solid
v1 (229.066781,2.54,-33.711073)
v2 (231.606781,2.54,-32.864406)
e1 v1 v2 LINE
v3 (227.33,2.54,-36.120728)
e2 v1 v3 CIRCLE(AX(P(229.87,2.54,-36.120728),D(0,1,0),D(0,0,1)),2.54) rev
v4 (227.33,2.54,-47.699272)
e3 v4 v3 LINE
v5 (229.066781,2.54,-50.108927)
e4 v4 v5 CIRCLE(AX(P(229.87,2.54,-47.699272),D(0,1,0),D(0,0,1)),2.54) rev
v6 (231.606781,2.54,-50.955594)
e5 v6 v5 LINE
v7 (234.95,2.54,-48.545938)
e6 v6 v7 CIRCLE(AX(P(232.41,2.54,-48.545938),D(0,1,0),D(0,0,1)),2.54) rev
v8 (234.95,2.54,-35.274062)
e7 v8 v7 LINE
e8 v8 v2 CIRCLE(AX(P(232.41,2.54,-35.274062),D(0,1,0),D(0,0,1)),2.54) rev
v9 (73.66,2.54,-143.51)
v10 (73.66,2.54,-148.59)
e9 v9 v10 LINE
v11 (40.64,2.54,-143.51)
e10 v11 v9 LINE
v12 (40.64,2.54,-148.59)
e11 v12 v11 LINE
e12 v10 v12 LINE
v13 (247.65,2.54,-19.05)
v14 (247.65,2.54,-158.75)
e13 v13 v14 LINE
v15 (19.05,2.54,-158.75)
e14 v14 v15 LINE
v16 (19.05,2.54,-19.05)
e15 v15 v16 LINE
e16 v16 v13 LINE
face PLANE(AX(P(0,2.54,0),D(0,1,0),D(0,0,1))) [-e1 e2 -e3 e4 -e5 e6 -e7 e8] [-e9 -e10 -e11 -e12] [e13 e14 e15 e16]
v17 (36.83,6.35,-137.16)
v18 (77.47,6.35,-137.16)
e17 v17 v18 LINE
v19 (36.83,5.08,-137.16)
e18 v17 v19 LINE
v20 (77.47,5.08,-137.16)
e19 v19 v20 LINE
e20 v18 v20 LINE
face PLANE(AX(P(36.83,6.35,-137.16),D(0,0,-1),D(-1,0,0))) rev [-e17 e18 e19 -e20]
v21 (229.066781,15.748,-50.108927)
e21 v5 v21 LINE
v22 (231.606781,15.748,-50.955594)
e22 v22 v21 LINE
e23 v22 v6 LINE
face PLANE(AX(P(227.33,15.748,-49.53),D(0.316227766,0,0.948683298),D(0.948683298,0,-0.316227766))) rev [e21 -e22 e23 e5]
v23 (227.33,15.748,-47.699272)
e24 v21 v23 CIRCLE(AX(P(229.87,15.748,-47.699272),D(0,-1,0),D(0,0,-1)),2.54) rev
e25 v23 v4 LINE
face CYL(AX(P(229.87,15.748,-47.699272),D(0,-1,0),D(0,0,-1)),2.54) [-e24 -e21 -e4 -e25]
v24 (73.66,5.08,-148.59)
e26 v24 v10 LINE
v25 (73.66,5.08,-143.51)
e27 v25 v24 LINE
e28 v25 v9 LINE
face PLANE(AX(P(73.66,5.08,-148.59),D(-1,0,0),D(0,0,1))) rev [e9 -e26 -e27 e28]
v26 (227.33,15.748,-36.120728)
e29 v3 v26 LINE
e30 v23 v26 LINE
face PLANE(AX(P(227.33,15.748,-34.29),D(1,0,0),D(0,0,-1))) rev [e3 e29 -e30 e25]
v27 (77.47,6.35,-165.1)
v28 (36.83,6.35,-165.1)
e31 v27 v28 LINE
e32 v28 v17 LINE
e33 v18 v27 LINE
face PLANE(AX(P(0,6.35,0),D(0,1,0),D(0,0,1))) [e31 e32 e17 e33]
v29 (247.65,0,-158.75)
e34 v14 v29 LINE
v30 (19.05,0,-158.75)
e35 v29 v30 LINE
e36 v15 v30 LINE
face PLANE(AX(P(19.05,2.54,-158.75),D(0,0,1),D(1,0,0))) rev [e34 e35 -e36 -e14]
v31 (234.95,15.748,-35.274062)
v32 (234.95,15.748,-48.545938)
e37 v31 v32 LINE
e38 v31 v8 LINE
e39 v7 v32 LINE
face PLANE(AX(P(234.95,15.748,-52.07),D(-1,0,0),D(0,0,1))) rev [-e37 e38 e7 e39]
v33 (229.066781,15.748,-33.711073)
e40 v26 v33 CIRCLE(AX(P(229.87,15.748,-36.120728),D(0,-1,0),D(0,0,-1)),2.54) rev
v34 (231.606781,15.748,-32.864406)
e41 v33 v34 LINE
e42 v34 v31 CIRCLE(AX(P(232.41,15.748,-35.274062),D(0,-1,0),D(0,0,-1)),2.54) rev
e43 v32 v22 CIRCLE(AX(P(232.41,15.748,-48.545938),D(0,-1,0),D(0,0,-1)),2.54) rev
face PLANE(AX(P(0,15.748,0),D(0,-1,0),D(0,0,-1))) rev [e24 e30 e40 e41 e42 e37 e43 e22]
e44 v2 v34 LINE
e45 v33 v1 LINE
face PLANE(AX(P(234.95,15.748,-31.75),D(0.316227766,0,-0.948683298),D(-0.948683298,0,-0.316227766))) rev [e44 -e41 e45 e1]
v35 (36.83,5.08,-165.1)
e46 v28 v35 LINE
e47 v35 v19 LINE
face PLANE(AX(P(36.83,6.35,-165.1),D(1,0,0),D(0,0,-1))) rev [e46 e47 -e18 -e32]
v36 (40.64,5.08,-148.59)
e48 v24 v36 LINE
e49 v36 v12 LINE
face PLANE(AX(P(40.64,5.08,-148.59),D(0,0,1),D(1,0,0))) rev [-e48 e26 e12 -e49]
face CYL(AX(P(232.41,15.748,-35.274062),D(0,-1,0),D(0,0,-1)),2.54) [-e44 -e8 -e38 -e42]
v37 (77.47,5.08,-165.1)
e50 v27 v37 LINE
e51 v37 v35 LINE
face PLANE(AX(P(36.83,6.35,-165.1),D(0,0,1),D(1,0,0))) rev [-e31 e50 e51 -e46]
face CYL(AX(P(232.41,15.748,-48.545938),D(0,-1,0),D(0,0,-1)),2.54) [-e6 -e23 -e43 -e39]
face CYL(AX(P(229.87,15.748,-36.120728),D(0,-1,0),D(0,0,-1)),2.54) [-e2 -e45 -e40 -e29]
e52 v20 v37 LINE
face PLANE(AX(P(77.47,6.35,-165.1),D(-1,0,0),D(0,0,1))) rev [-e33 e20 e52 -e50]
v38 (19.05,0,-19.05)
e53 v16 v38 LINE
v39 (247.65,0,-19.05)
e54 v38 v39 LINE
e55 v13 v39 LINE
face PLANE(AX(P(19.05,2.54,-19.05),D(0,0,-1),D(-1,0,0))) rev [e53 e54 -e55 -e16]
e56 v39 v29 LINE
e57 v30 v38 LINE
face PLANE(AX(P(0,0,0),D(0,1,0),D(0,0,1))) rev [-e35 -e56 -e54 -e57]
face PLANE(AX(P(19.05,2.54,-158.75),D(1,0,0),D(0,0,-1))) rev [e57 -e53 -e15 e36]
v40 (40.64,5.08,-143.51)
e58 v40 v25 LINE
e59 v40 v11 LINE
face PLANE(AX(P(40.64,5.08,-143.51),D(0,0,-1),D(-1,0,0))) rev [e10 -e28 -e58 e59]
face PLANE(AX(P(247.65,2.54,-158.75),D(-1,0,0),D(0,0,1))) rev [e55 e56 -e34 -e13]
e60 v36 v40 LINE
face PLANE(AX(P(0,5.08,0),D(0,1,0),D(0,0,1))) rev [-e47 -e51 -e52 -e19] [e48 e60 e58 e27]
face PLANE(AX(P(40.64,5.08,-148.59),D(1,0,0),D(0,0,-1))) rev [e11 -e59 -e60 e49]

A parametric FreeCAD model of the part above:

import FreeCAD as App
import Part
import Sketcher
from FreeCAD import Vector
Q = App.Units.Quantity


def edges_at(feature, points):
    """Names of the edges that pass closest to the given points."""
    edges = feature.Shape.Edges
    near = lambda p: min(range(len(edges)), key=lambda i: edges[i].distToShape(Part.Vertex(*p))[0])
    return sorted({f"Edge{near(p) + 1}" for p in points})

doc = App.newDocument("Part")
body = doc.addObject("PartDesign::Body", "Body")

# Sketch on XZ plane
sketch1 = body.newObject("Sketcher::SketchObject", "Sketch")
sketch1.AttachmentSupport = (doc.getObject("XZ_Plane"), [""])
sketch1.MapMode = "FlatFace"
sketch1.addGeometry([
    Part.LineSegment(Vector(19.05, -158.75, 0), Vector(19.05, -19.05, 0)),
    Part.LineSegment(Vector(19.05, -19.05, 0), Vector(247.65, -19.05, 0)),
    Part.LineSegment(Vector(247.65, -19.05, 0), Vector(247.65, -158.75, 0)),
    Part.LineSegment(Vector(247.65, -158.75, 0), Vector(19.05, -158.75, 0)),
], False)
sketch1.addConstraint([
    Sketcher.Constraint("Coincident", 0, 2, 1, 1),
    Sketcher.Constraint("Coincident", 1, 2, 2, 1),
    Sketcher.Constraint("Coincident", 2, 2, 3, 1),
    Sketcher.Constraint("Coincident", 3, 2, 0, 1),
    Sketcher.Constraint("Vertical", 0),
    Sketcher.Constraint("Horizontal", 1),
    Sketcher.Constraint("Vertical", 2),
    Sketcher.Constraint("Horizontal", 3),
    Sketcher.Constraint("DistanceX", 1, 1, 1, 2, Q("9 in")),
    Sketcher.Constraint("DistanceY", 0, 1, 0, 2, Q("5.5 in")),
    Sketcher.Constraint("DistanceX", -1, 1, 0, 2, Q("0.75 in")),
    Sketcher.Constraint("DistanceY", 0, 2, -1, 1, Q("0.75 in")),
])
pad1 = body.newObject("PartDesign::Pad", "Pad")
pad1.Profile = sketch1
pad1.Length = Q("0.1 in")
pad1.Reversed = True

# Sketch on XZ plane
sketch2 = body.newObject("Sketcher::SketchObject", "Sketch001")
sketch2.AttachmentSupport = (doc.getObject("XZ_Plane"), [""])
sketch2.MapMode = "FlatFace"
sketch2.AttachmentOffset = App.Placement(Vector(0, 0, -0.1 * 25.4), App.Rotation())
sketch2.addGeometry([
    Part.LineSegment(Vector(40.64, -148.59, 0), Vector(40.64, -143.51, 0)),
    Part.LineSegment(Vector(40.64, -143.51, 0), Vector(73.66, -143.51, 0)),
    Part.LineSegment(Vector(73.66, -143.51, 0), Vector(73.66, -148.59, 0)),
    Part.LineSegment(Vector(73.66, -148.59, 0), Vector(40.64, -148.59, 0)),
], False)
sketch2.addConstraint([
    Sketcher.Constraint("Coincident", 0, 2, 1, 1),
    Sketcher.Constraint("Coincident", 1, 2, 2, 1),
    Sketcher.Constraint("Coincident", 2, 2, 3, 1),
    Sketcher.Constraint("Coincident", 3, 2, 0, 1),
    Sketcher.Constraint("Vertical", 0),
    Sketcher.Constraint("Horizontal", 1),
    Sketcher.Constraint("Vertical", 2),
    Sketcher.Constraint("Horizontal", 3),
    Sketcher.Constraint("DistanceX", 1, 1, 1, 2, Q("1.3 in")),
    Sketcher.Constraint("DistanceY", 0, 1, 0, 2, Q("0.2 in")),
    Sketcher.Constraint("DistanceX", -1, 1, 0, 2, Q("1.6 in")),
    Sketcher.Constraint("DistanceY", 0, 2, -1, 1, Q("5.65 in")),
])
pad2 = body.newObject("PartDesign::Pad", "Pad001")
pad2.Profile = sketch2
pad2.Length = Q("0.1 in")
pad2.Reversed = True

# Sketch on XZ plane
sketch3 = body.newObject("Sketcher::SketchObject", "Sketch002")
sketch3.AttachmentSupport = (doc.getObject("XZ_Plane"), [""])
sketch3.MapMode = "FlatFace"
sketch3.AttachmentOffset = App.Placement(Vector(0, 0, -0.2 * 25.4), App.Rotation())
sketch3.addGeometry([
    Part.LineSegment(Vector(36.83, -165.1, 0), Vector(36.83, -137.16, 0)),
    Part.LineSegment(Vector(36.83, -137.16, 0), Vector(77.47, -137.16, 0)),
    Part.LineSegment(Vector(77.47, -137.16, 0), Vector(77.47, -165.1, 0)),
    Part.LineSegment(Vector(77.47, -165.1, 0), Vector(36.83, -165.1, 0)),
], False)
sketch3.addConstraint([
    Sketcher.Constraint("Coincident", 0, 2, 1, 1),
    Sketcher.Constraint("Coincident", 1, 2, 2, 1),
    Sketcher.Constraint("Coincident", 2, 2, 3, 1),
    Sketcher.Constraint("Coincident", 3, 2, 0, 1),
    Sketcher.Constraint("Vertical", 0),
    Sketcher.Constraint("Horizontal", 1),
    Sketcher.Constraint("Vertical", 2),
    Sketcher.Constraint("Horizontal", 3),
    Sketcher.Constraint("DistanceX", 1, 1, 1, 2, Q("1.6 in")),
    Sketcher.Constraint("DistanceY", 0, 1, 0, 2, Q("1.1 in")),
    Sketcher.Constraint("DistanceY", 0, 2, -1, 1, Q("5.4 in")),
    Sketcher.Constraint("DistanceX", -1, 1, 0, 2, Q("1.45 in")),
])
pad3 = body.newObject("PartDesign::Pad", "Pad002")
pad3.Profile = sketch3
pad3.Length = Q("0.05 in")
pad3.Reversed = True

# Sketch on XZ plane
sketch4 = body.newObject("Sketcher::SketchObject", "Sketch003")
sketch4.AttachmentSupport = (doc.getObject("XZ_Plane"), [""])
sketch4.MapMode = "FlatFace"
sketch4.AttachmentOffset = App.Placement(Vector(0, 0, -0.1 * 25.4), App.Rotation())
sketch4.addGeometry([
    Part.LineSegment(Vector(234.95, -52.07, 0), Vector(227.33, -49.53, 0)),
    Part.LineSegment(Vector(227.33, -49.53, 0), Vector(227.33, -34.29, 0)),
    Part.LineSegment(Vector(227.33, -34.29, 0), Vector(234.95, -31.75, 0)),
    Part.LineSegment(Vector(234.95, -31.75, 0), Vector(234.95, -52.07, 0)),
], False)
sketch4.addConstraint([
    Sketcher.Constraint("Coincident", 0, 2, 1, 1),
    Sketcher.Constraint("Coincident", 1, 2, 2, 1),
    Sketcher.Constraint("Coincident", 2, 2, 3, 1),
    Sketcher.Constraint("Coincident", 3, 2, 0, 1),
    Sketcher.Constraint("Vertical", 1),
    Sketcher.Constraint("Vertical", 3),
    Sketcher.Constraint("Equal", 0, 2),
    Sketcher.Constraint("DistanceY", 1, 1, 1, 2, Q("0.6 in")),
    Sketcher.Constraint("DistanceY", 3, 2, 3, 1, Q("0.8 in")),
    Sketcher.Constraint("DistanceX", 1, 2, 2, 2, Q("0.3 in")),
    Sketcher.Constraint("DistanceX", -1, 1, 0, 2, Q("8.95 in")),
    Sketcher.Constraint("DistanceY", 0, 2, -1, 1, Q("1.95 in")),
])
pad4 = body.newObject("PartDesign::Pad", "Pad003")
pad4.Profile = sketch4
pad4.Length = Q("0.52 in")
pad4.Reversed = True
doc.recompute()

fillet = body.newObject("PartDesign::Fillet", "Fillet")
fillet.Base = (pad4, edges_at(pad4, [
    (227.33, 9.144, -49.53),
    (227.33, 9.144, -34.29),
    (234.95, 9.144, -31.75),
    (234.95, 9.144, -52.07),
]))
fillet.Radius = Q("0.1 in")

doc.recompute()
